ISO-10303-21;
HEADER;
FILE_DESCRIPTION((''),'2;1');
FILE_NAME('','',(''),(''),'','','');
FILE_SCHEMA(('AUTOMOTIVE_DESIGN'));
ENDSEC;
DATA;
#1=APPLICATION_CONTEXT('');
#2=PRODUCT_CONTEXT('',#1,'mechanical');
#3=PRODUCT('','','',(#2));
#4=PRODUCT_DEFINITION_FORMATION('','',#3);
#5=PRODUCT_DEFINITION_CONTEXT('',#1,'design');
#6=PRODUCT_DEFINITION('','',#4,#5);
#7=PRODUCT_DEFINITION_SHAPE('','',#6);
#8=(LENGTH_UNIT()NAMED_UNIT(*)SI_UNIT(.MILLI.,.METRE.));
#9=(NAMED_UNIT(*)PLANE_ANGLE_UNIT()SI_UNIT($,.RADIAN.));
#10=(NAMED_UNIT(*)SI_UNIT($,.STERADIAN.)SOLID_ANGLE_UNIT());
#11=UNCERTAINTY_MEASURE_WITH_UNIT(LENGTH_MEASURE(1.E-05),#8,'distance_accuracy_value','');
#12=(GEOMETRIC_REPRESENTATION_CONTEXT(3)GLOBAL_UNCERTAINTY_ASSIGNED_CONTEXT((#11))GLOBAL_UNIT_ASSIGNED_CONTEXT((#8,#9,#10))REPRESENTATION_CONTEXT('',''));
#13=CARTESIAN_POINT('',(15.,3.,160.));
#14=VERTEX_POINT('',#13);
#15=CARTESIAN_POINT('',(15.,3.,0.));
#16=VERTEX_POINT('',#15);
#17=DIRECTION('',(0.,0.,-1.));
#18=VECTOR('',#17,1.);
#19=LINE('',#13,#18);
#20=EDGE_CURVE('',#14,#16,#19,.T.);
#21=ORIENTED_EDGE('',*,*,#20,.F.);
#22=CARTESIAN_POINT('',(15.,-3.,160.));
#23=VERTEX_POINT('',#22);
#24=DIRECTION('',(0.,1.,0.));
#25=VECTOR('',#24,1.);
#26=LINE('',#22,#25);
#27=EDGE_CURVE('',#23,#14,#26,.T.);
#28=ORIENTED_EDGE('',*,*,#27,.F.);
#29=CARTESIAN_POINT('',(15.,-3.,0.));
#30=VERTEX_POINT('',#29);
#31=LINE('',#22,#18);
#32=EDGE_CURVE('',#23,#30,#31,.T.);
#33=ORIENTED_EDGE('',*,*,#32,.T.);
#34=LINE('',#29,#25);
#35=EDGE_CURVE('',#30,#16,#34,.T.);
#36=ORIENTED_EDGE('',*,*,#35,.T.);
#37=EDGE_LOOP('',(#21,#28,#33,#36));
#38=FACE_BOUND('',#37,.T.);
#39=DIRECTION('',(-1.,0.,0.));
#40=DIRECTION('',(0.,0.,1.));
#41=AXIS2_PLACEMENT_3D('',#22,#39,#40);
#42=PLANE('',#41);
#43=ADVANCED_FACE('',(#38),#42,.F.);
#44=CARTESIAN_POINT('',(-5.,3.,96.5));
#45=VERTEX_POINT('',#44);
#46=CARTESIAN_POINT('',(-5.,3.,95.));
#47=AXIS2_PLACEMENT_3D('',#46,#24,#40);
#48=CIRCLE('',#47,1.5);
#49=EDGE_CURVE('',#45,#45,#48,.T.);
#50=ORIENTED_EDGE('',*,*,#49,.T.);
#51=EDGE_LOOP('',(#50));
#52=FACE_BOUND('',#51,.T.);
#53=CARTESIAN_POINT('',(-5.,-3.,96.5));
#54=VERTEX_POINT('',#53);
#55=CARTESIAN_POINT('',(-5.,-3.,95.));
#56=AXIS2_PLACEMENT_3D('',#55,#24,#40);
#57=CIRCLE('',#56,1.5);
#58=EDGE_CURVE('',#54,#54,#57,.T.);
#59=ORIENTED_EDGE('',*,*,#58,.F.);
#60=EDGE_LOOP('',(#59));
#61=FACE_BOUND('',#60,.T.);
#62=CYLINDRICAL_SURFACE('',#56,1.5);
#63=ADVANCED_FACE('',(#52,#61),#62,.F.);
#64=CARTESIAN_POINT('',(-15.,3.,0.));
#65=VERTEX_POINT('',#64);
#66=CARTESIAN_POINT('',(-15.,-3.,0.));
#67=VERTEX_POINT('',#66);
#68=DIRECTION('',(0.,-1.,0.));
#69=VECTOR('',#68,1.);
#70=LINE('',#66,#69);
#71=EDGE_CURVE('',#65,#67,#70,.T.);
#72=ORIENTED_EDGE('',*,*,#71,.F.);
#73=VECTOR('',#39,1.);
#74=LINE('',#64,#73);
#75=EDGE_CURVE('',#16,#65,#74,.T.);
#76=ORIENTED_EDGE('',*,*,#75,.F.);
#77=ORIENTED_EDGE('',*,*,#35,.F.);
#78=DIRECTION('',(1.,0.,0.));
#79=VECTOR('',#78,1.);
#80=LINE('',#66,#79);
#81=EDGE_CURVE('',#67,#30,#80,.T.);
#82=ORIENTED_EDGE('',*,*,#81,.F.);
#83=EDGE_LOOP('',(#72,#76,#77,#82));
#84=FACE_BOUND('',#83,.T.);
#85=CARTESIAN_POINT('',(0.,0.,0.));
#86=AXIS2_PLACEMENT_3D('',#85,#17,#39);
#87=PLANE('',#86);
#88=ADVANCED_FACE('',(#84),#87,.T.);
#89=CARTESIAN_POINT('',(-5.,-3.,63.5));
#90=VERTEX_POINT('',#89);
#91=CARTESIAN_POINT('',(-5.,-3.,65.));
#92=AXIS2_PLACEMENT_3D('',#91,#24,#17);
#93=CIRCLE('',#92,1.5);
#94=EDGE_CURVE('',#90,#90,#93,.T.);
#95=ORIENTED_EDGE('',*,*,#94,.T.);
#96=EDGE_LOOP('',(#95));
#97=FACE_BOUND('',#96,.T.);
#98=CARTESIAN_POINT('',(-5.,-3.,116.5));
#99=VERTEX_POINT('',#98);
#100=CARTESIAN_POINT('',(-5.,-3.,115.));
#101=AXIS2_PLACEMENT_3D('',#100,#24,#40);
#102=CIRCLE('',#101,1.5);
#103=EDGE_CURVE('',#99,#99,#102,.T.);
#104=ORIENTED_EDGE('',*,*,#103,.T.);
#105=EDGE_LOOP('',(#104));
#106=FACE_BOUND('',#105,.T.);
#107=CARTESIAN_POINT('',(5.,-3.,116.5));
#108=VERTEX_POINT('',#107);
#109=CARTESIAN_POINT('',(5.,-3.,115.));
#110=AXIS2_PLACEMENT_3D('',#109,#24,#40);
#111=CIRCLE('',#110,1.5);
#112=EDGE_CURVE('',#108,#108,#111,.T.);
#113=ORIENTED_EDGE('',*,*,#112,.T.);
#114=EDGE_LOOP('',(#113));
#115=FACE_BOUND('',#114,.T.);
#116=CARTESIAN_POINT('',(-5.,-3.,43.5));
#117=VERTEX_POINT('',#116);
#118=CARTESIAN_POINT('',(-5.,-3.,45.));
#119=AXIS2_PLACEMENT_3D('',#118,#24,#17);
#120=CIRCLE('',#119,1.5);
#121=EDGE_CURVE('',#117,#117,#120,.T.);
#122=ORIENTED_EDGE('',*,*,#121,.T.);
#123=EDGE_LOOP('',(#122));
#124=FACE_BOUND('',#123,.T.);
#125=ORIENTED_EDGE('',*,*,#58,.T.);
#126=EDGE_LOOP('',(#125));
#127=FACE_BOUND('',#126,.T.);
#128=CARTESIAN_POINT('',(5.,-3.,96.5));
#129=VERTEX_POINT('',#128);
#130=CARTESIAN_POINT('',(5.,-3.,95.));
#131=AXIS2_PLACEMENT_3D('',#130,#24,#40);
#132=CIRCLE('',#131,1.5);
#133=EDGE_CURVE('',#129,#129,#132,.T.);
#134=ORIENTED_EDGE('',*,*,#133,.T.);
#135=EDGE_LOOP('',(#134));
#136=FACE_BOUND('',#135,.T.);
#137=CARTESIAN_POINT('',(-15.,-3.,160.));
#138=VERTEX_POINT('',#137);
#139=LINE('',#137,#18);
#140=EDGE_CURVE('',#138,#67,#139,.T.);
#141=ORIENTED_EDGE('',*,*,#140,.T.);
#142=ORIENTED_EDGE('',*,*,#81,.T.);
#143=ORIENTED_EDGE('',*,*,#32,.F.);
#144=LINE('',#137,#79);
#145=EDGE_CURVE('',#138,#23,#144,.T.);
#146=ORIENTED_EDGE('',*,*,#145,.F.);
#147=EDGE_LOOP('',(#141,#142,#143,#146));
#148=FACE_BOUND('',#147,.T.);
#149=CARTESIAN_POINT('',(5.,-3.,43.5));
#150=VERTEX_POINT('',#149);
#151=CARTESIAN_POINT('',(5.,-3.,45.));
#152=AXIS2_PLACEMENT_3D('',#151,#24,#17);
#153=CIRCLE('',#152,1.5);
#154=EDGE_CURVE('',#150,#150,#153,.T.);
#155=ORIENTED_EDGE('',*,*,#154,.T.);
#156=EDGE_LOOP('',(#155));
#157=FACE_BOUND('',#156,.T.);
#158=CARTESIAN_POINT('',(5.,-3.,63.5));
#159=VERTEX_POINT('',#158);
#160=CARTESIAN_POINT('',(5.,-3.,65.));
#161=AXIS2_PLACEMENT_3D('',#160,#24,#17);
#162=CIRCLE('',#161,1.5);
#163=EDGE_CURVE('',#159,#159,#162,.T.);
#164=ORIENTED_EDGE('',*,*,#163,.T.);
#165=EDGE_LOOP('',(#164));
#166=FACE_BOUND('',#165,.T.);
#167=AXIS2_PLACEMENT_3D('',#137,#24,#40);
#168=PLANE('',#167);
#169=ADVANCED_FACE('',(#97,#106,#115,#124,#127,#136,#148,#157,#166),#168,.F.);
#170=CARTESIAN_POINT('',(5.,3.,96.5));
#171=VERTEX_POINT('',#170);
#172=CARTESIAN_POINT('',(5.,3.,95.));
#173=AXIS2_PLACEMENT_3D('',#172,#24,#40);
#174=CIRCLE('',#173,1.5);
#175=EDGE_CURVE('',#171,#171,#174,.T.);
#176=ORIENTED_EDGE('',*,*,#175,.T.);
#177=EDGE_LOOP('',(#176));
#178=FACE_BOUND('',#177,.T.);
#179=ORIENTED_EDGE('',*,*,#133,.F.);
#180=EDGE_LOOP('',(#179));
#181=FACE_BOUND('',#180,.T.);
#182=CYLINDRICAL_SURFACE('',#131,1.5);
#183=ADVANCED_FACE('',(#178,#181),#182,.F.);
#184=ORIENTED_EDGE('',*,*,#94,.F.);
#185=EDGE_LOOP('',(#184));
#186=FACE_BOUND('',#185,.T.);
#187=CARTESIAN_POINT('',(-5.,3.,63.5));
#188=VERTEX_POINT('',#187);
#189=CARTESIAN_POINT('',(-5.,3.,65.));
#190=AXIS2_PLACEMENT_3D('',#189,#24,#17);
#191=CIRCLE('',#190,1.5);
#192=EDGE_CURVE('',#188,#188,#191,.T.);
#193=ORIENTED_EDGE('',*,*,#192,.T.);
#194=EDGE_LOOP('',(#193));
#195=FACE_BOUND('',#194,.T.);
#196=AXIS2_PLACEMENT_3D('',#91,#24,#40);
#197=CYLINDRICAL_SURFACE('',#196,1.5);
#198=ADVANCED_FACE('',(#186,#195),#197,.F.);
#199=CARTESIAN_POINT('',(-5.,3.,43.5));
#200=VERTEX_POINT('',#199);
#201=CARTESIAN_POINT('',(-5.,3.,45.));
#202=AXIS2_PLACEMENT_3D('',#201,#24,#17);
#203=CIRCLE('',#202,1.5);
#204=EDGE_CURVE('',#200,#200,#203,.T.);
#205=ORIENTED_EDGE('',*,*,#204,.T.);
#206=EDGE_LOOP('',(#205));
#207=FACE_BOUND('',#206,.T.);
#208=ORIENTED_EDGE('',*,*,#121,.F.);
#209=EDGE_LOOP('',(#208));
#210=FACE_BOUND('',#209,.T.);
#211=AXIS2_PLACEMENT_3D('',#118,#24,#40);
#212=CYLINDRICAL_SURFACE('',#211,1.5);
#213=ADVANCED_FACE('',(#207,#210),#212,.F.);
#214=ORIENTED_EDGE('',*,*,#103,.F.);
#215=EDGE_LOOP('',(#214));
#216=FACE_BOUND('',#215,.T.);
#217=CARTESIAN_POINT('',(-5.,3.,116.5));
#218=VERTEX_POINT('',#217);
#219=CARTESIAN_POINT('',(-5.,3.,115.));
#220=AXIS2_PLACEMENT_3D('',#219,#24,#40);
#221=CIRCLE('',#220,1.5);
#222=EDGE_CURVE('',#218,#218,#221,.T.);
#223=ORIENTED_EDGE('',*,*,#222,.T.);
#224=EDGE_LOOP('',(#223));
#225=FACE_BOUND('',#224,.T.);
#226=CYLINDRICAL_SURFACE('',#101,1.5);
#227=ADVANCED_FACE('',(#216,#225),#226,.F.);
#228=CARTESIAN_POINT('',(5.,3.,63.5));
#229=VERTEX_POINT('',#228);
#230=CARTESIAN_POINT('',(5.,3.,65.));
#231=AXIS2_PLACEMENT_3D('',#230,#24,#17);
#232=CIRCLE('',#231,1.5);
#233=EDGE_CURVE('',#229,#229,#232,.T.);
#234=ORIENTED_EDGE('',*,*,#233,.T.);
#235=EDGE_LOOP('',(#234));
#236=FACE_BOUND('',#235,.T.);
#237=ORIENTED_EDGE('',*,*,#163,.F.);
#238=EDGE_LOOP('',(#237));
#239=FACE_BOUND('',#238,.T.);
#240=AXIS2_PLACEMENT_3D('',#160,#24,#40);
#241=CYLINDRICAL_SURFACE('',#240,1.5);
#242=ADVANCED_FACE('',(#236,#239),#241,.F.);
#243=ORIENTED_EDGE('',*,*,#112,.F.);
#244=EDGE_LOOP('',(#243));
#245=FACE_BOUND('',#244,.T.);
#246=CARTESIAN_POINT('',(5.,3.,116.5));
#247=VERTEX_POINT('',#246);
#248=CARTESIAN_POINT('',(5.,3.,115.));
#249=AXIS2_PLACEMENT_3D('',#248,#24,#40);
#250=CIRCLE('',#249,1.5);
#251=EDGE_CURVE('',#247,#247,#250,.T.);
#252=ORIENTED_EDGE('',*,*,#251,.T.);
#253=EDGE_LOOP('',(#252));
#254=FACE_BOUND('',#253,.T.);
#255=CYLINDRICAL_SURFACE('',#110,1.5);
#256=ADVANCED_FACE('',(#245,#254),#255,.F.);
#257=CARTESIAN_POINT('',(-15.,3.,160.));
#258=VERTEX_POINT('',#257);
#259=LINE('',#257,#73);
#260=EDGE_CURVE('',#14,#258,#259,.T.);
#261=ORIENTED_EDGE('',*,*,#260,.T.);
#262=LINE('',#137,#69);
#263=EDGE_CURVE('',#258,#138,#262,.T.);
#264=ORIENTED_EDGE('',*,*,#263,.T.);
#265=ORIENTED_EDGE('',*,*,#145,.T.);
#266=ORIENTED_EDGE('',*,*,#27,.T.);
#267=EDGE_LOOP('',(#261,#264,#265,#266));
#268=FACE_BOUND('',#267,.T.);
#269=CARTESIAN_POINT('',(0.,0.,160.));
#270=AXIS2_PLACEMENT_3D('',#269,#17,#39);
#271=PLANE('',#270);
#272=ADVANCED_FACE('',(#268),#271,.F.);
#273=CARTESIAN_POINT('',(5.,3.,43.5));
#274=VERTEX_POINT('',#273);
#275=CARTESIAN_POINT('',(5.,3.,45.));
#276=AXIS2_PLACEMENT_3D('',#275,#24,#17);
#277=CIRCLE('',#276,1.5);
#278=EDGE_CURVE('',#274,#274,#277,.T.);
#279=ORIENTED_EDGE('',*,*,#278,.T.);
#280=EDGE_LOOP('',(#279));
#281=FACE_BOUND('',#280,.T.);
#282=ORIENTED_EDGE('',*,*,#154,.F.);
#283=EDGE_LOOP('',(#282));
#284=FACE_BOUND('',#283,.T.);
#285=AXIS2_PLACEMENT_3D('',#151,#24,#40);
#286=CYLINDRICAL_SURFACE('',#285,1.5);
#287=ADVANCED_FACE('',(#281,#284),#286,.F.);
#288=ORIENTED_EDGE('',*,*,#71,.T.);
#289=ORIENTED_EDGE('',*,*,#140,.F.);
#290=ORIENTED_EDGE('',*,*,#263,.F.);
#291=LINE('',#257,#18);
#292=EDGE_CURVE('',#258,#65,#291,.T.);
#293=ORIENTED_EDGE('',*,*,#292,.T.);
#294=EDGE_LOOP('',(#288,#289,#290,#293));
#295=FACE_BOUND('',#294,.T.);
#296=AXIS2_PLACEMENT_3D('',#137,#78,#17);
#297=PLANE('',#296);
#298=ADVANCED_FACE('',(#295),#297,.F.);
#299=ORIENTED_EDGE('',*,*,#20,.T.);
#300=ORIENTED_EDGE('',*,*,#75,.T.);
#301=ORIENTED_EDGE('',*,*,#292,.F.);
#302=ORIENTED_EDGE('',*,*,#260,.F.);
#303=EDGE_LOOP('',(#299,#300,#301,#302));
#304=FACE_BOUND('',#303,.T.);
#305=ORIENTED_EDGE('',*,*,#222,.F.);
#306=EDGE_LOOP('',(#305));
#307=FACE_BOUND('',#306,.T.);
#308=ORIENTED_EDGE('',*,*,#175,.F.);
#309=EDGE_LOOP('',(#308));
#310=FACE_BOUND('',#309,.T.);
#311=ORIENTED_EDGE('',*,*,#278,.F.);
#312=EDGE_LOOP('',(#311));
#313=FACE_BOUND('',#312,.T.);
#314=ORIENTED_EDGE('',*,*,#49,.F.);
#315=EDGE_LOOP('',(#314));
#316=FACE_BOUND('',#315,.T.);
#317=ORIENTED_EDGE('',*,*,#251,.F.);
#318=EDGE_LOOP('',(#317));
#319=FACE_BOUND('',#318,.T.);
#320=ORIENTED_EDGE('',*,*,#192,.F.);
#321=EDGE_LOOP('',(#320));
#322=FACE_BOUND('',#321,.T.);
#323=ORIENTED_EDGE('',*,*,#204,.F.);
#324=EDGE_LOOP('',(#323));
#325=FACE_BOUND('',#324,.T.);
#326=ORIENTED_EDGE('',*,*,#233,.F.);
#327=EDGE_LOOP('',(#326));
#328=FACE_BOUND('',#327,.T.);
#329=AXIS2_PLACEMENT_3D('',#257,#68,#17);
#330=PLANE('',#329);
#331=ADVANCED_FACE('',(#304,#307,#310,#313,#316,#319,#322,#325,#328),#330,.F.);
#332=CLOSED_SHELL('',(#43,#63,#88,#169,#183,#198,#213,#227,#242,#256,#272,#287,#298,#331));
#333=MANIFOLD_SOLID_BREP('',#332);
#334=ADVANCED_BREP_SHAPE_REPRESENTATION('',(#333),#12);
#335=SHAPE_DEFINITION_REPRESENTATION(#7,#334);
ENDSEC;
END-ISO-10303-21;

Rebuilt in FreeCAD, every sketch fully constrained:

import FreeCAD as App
import Part
import Sketcher
from FreeCAD import Vector


def add_polygon(sketch, points):
    """Adds a closed chain of lines whose ends are joined by coincident constraints."""
    first, n = sketch.GeometryCount, len(points)
    for a, b in zip(points, points[1:] + points[:1]):
        sketch.addGeometry(Part.LineSegment(App.Vector(*a, 0), App.Vector(*b, 0)), False)
    for i in range(n):
        sketch.addConstraint(Sketcher.Constraint("Coincident", first + i, 2, first + (i + 1) % n, 1))

doc = App.newDocument("Part")
body = doc.addObject("PartDesign::Body", "Body")

sketch1 = body.newObject("Sketcher::SketchObject", "Sketch")
sketch1.AttachmentSupport = (doc.getObject("XY_Plane"), [""])
sketch1.MapMode = "FlatFace"
add_polygon(sketch1, [(-15, 3), (-15, -3), (15, -3), (15, 3)])
sketch1.addConstraint([
    Sketcher.Constraint("Vertical", 0),
    Sketcher.Constraint("Horizontal", 1),
    Sketcher.Constraint("Vertical", 2),
    Sketcher.Constraint("Horizontal", 3),
    Sketcher.Constraint("Symmetric", 0, 2, 2, 2, -1, 1),
    Sketcher.Constraint("DistanceX", 1, 1, 1, 2, 30.0),
    Sketcher.Constraint("DistanceY", 0, 2, 0, 1, 6.0),
])
pad1 = body.newObject("PartDesign::Pad", "Pad")
pad1.Profile = sketch1
pad1.Length = 160

sketch2 = body.newObject("Sketcher::SketchObject", "Sketch001")
sketch2.AttachmentSupport = (doc.getObject("XZ_Plane"), [""])
sketch2.MapMode = "FlatFace"
sketch2.AttachmentOffset = App.Placement(Vector(0, 0, -3), App.Rotation())
sketch2.addGeometry([
    Part.Circle(Vector(-5, 115, 0), Vector(0, 0, 1), 1.5),
    Part.Circle(Vector(5, 115, 0), Vector(0, 0, 1), 1.5),
    Part.Circle(Vector(5, 95, 0), Vector(0, 0, 1), 1.5),
    Part.Circle(Vector(-5, 95, 0), Vector(0, 0, 1), 1.5),
    Part.Circle(Vector(-5, 65, 0), Vector(0, 0, 1), 1.5),
    Part.Circle(Vector(5, 65, 0), Vector(0, 0, 1), 1.5),
    Part.Circle(Vector(5, 45, 0), Vector(0, 0, 1), 1.5),
    Part.Circle(Vector(-5, 45, 0), Vector(0, 0, 1), 1.5),
], False)
sketch2.addConstraint([
    Sketcher.Constraint("Equal", 0, 1),
    Sketcher.Constraint("Equal", 1, 2),
    Sketcher.Constraint("Equal", 2, 3),
    Sketcher.Constraint("Equal", 3, 4),
    Sketcher.Constraint("Equal", 4, 5),
    Sketcher.Constraint("Equal", 5, 6),
    Sketcher.Constraint("Equal", 6, 7),
    Sketcher.Constraint("Symmetric", 0, 3, 1, 3, -2),
    Sketcher.Constraint("Symmetric", 2, 3, 3, 3, -2),
    Sketcher.Constraint("Symmetric", 4, 3, 5, 3, -2),
    Sketcher.Constraint("Symmetric", 6, 3, 7, 3, -2),
    Sketcher.Constraint("Vertical", 1, 3, 2, 3),
    Sketcher.Constraint("Vertical", 3, 3, 4, 3),
    Sketcher.Constraint("Vertical", 5, 3, 6, 3),
    Sketcher.Constraint("Diameter", 0, 3.0),
    Sketcher.Constraint("DistanceX", 0, 3, -1, 1, 5.0),
    Sketcher.Constraint("DistanceY", -1, 1, 0, 3, 115.0),
    Sketcher.Constraint("DistanceY", -1, 1, 2, 3, 95.0),
    Sketcher.Constraint("DistanceY", -1, 1, 4, 3, 65.0),
    Sketcher.Constraint("DistanceY", -1, 1, 6, 3, 45.0),
])
pocket1 = body.newObject("PartDesign::Pocket", "Pocket")
pocket1.Profile = sketch2
pocket1.Type = "ThroughAll"
pocket1.Reversed = True

doc.recompute()
